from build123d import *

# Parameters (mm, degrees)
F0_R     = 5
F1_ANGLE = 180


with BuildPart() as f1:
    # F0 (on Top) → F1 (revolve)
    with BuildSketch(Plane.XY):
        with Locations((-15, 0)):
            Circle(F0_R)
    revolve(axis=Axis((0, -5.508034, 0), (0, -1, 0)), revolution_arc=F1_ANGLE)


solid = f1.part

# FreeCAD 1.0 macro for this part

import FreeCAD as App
import Part
import Sketcher

V = App.Vector

doc = App.newDocument("Part")
body = doc.addObject("PartDesign::Body", "Body")

sketch1 = body.newObject("Sketcher::SketchObject", "Sketch")
sketch1.AttachmentSupport = (doc.getObject("XY_Plane"), [""])
sketch1.MapMode = "FlatFace"
sketch1.addGeometry(Part.Circle(V(-15, 0, 0), V(0, 0, 1), 5), False)
sketch1.addConstraint(Sketcher.Constraint("PointOnObject", 0, 3, -1))
sketch1.addConstraint(Sketcher.Constraint("Diameter", 0, 10.0))
sketch1.addConstraint(Sketcher.Constraint("DistanceX", 0, 3, -1, 1, 15.0))
revolution = body.newObject("PartDesign::Revolution", "Revolution")
revolution.Profile = sketch1
revolution.ReferenceAxis = (sketch1, ["V_Axis"])
revolution.Angle = 180
revolution.Reversed = True

doc.recompute()
